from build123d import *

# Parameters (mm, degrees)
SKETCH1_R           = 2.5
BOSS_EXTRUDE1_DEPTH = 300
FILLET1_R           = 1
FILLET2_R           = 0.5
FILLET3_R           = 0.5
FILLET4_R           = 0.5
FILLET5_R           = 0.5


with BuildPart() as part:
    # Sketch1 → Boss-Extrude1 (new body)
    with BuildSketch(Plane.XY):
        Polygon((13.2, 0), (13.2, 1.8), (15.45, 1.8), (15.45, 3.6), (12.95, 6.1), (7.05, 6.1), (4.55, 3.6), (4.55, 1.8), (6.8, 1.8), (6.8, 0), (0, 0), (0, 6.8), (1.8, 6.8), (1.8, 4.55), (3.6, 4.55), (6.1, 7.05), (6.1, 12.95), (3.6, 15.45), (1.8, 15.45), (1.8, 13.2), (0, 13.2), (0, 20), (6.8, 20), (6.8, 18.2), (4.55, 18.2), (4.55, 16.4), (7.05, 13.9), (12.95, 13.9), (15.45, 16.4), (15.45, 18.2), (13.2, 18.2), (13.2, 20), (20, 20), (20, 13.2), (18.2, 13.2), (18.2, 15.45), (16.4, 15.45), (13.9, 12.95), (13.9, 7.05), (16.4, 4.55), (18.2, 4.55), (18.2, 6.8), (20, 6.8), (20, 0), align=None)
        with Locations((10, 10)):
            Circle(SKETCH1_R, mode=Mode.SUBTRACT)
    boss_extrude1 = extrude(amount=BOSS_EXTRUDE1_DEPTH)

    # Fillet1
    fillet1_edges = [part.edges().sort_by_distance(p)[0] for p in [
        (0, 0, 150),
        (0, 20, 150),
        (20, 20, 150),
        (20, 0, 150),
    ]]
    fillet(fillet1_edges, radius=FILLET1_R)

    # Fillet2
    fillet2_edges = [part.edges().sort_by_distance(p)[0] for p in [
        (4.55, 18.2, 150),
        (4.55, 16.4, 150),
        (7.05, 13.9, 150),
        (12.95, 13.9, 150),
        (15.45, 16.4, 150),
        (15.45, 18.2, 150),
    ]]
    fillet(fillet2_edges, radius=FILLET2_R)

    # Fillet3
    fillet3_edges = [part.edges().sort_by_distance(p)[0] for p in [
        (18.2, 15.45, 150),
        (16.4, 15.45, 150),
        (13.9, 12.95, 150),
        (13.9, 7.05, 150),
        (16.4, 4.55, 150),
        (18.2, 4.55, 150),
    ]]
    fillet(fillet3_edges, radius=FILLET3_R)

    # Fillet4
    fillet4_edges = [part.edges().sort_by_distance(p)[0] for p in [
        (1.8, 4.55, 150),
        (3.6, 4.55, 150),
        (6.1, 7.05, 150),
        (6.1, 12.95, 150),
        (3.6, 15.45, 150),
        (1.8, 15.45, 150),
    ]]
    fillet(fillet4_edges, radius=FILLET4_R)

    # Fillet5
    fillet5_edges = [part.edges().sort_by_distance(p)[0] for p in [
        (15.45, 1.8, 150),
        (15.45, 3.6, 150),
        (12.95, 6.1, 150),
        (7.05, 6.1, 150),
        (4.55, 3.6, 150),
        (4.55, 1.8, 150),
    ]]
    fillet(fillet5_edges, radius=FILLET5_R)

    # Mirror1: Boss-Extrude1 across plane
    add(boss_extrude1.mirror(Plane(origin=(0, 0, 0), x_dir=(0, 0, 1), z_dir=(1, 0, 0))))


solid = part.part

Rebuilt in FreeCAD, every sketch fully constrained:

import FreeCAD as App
import Part
import Sketcher
Q = App.Units.Quantity


def edges_at(feature, points):
    """Names of the edges that pass closest to the given points."""
    edges = feature.Shape.Edges
    near = lambda p: min(range(len(edges)), key=lambda i: edges[i].distToShape(Part.Vertex(*p))[0])
    return sorted({f"Edge{near(p) + 1}" for p in points})


def add_polygon(sketch, points):
    """Adds a closed chain of lines whose ends are joined by coincident constraints."""
    first, n = sketch.GeometryCount, len(points)
    for a, b in zip(points, points[1:] + points[:1]):
        sketch.addGeometry(Part.LineSegment(App.Vector(*a, 0), App.Vector(*b, 0)), False)
    for i in range(n):
        sketch.addConstraint(Sketcher.Constraint("Coincident", first + i, 2, first + (i + 1) % n, 1))

doc = App.newDocument("Part")
params = doc.addObject("Spreadsheet::Sheet", "Params")
for row, (alias, value) in enumerate([
    ("sketch1_diameter", "5 mm"),
    ("sketch1_width", "6.8 mm"),
    ("sketch1_width2", "1.8 mm"),
    ("sketch1_width3", "5.9 mm"),
    ("sketch1_width4", "2.25 mm"),
    ("pad1_length", "300 mm"),
    ("fillet_radius", "1 mm"),
    ("fillet2_radius", "0.5 mm"),
    ("fillet3_radius", "0.5 mm"),
    ("fillet4_radius", "0.5 mm"),
    ("fillet5_radius", "0.5 mm"),
], start=1):
    params.set(f"A{row}", alias)
    params.set(f"B{row}", "=" + value)
    params.setAlias(f"B{row}", alias)

body = doc.addObject("PartDesign::Body", "Body")

# Sketch on XY plane
sketch1 = doc.addObject("Sketcher::SketchObject", "Sketch")
body.addObject(sketch1)
sketch1.AttachmentSupport = (doc.XY_Plane, [""])
sketch1.MapMode = "FlatFace"
add_polygon(sketch1, [(13.2, 1.8), (13.2, 0), (20, 0), (20, 6.8), (18.2, 6.8), (18.2, 4.55), (16.4, 4.55), (13.9, 7.05), (13.9, 12.95), (16.4, 15.45), (18.2, 15.45), (18.2, 13.2), (20, 13.2), (20, 20), (13.2, 20), (13.2, 18.2), (15.45, 18.2), (15.45, 16.4), (12.95, 13.9), (7.05, 13.9), (4.55, 16.4), (4.55, 18.2), (6.8, 18.2), (6.8, 20), (0, 20), (0, 13.2), (1.8, 13.2), (1.8, 15.45), (3.6, 15.45), (6.1, 12.95), (6.1, 7.05), (3.6, 4.55), (1.8, 4.55), (1.8, 6.8), (0, 6.8), (0, 0), (6.8, 0), (6.8, 1.8), (4.55, 1.8), (4.55, 3.6), (7.05, 6.1), (12.95, 6.1), (15.45, 3.6), (15.45, 1.8)])  # lines 0-43
sketch1.addGeometry(Part.Circle(App.Vector(10, 10, 0), App.Vector(0, 0, 1), 2.5), False)  # 44
sketch1.addConstraint([
    Sketcher.Constraint("Vertical", 0),
    Sketcher.Constraint("Horizontal", 1),
    Sketcher.Constraint("Vertical", 2),
    Sketcher.Constraint("Horizontal", 3),
    Sketcher.Constraint("Vertical", 4),
    Sketcher.Constraint("Horizontal", 5),
    Sketcher.Constraint("Vertical", 7),
    Sketcher.Constraint("Horizontal", 9),
    Sketcher.Constraint("Vertical", 10),
    Sketcher.Constraint("Horizontal", 11),
    Sketcher.Constraint("Vertical", 12),
    Sketcher.Constraint("Horizontal", 13),
    Sketcher.Constraint("Vertical", 14),
    Sketcher.Constraint("Horizontal", 15),
    Sketcher.Constraint("Vertical", 16),
    Sketcher.Constraint("Horizontal", 18),
    Sketcher.Constraint("Vertical", 20),
    Sketcher.Constraint("Horizontal", 21),
    Sketcher.Constraint("Vertical", 22),
    Sketcher.Constraint("Horizontal", 23),
    Sketcher.Constraint("Vertical", 24),
    Sketcher.Constraint("Horizontal", 25),
    Sketcher.Constraint("Vertical", 26),
    Sketcher.Constraint("Horizontal", 27),
    Sketcher.Constraint("Vertical", 29),
    Sketcher.Constraint("Horizontal", 31),
    Sketcher.Constraint("Vertical", 32),
    Sketcher.Constraint("Horizontal", 33),
    Sketcher.Constraint("Vertical", 34),
    Sketcher.Constraint("Horizontal", 35),
    Sketcher.Constraint("Vertical", 36),
    Sketcher.Constraint("Horizontal", 37),
    Sketcher.Constraint("Vertical", 38),
    Sketcher.Constraint("Horizontal", 40),
    Sketcher.Constraint("Vertical", 42),
    Sketcher.Constraint("Horizontal", 43),
    Sketcher.Constraint("Coincident", 34, 2, -1, 1),
    Sketcher.Constraint("PointOnObject", 0, 2, -1),
    Sketcher.Constraint("PointOnObject", 23, 2, -2),
    Sketcher.Constraint("Perpendicular", 6, 8),
    Sketcher.Constraint("Parallel", 8, 17),
    Sketcher.Constraint("Perpendicular", 17, 19),
    Sketcher.Constraint("Parallel", 19, 28),
    Sketcher.Constraint("Perpendicular", 28, 30),
    Sketcher.Constraint("Parallel", 30, 39),
    Sketcher.Constraint("Perpendicular", 39, 41),
    Sketcher.Constraint("Horizontal", 16, 2, 19, 2),
    Sketcher.Constraint("Horizontal", 15, 2, 20, 2),
    Sketcher.Constraint("Horizontal", 13, 2, 22, 2),
    Sketcher.Constraint("Horizontal", 11, 2, 24, 2),
    Sketcher.Constraint("Horizontal", 9, 2, 26, 2),
    Sketcher.Constraint("Horizontal", 7, 2, 28, 2),
    Sketcher.Constraint("Horizontal", 6, 2, 29, 2),
    Sketcher.Constraint("Horizontal", 5, 2, 30, 2),
    Sketcher.Constraint("Horizontal", 3, 2, 32, 2),
    Sketcher.Constraint("Horizontal", 38, 2, 41, 2),
    Sketcher.Constraint("Horizontal", 37, 2, 42, 2),
    Sketcher.Constraint("Vertical", 5, 2, 8, 2),
    Sketcher.Constraint("Vertical", 4, 2, 9, 2),
    Sketcher.Constraint("Vertical", 2, 2, 11, 2),
    Sketcher.Constraint("Vertical", 0, 2, 13, 2),
    Sketcher.Constraint("Vertical", 27, 2, 30, 2),
    Sketcher.Constraint("Vertical", 26, 2, 31, 2),
    Sketcher.Constraint("Vertical", 22, 2, 35, 2),
    Sketcher.Constraint("Vertical", 20, 2, 37, 2),
    Sketcher.Constraint("Vertical", 18, 2, 39, 2),
    Sketcher.Constraint("Vertical", 17, 2, 40, 2),
    Sketcher.Constraint("Equal", 3, 5),
    Sketcher.Constraint("Equal", 15, 21),
    Sketcher.Constraint("Equal", 13, 23),
    Sketcher.Constraint("Equal", 11, 25),
    Sketcher.Constraint("Equal", 25, 27),
    Sketcher.Constraint("Equal", 33, 0),
    Sketcher.Constraint("Equal", 35, 2),
    Sketcher.Constraint("Equal", 43, 4),
    Sketcher.Constraint("Equal", 40, 7),
    Sketcher.Constraint("Equal", 4, 10),
    Sketcher.Constraint("Equal", 2, 12),
    Sketcher.Constraint("Equal", 0, 14),
    Sketcher.Constraint("Equal", 14, 16),
    Sketcher.Constraint("Equal", 36, 38),
    Sketcher.Constraint("Equal", 8, 17),
    Sketcher.Constraint("Diameter", 44, Q("5 mm")),
    Sketcher.Constraint("DistanceX", 1, 1, 1, 2, Q("6.8 mm")),
    Sketcher.Constraint("DistanceX", 3, 2, 3, 1, Q("1.8 mm")),
    Sketcher.Constraint("DistanceX", 18, 2, 18, 1, Q("5.9 mm")),
    Sketcher.Constraint("DistanceX", -1, 1, 44, 3, Q("10 mm")),
    Sketcher.Constraint("DistanceY", -1, 1, 44, 3, Q("10 mm")),
    Sketcher.Constraint("DistanceX", -1, 1, 1, 2, Q("20 mm")),
    Sketcher.Constraint("DistanceX", 15, 1, 15, 2, Q("2.25 mm")),
])
sketch1.setExpression("Constraints[126]", "Params.sketch1_diameter")
sketch1.setExpression("Constraints[127]", "Params.sketch1_width")
sketch1.setExpression("Constraints[128]", "Params.sketch1_width2")
sketch1.setExpression("Constraints[129]", "Params.sketch1_width3")
sketch1.setExpression("Constraints[133]", "Params.sketch1_width4")
pad1 = doc.addObject("PartDesign::Pad", "Pad")
body.addObject(pad1)
pad1.Profile = sketch1
pad1.setExpression("Length", "Params.pad1_length")
doc.recompute()

fillet = doc.addObject("PartDesign::Fillet", "Fillet")
body.addObject(fillet)
fillet.Base = (pad1, edges_at(pad1, [
    (0, 0, 150),
    (0, 20, 150),
    (20, 20, 150),
    (20, 0, 150),
]))
fillet.setExpression("Radius", "Params.fillet_radius")
doc.recompute()

fillet2 = doc.addObject("PartDesign::Fillet", "Fillet001")
body.addObject(fillet2)
fillet2.Base = (fillet, edges_at(fillet, [
    (4.55, 18.2, 150),
    (4.55, 16.4, 150),
    (7.05, 13.9, 150),
    (12.95, 13.9, 150),
    (15.45, 16.4, 150),
    (15.45, 18.2, 150),
]))
fillet2.setExpression("Radius", "Params.fillet2_radius")
doc.recompute()

fillet3 = doc.addObject("PartDesign::Fillet", "Fillet002")
body.addObject(fillet3)
fillet3.Base = (fillet2, edges_at(fillet2, [
    (18.2, 15.45, 150),
    (16.4, 15.45, 150),
    (13.9, 12.95, 150),
    (13.9, 7.05, 150),
    (16.4, 4.55, 150),
    (18.2, 4.55, 150),
]))
fillet3.setExpression("Radius", "Params.fillet3_radius")
doc.recompute()

fillet4 = doc.addObject("PartDesign::Fillet", "Fillet003")
body.addObject(fillet4)
fillet4.Base = (fillet3, edges_at(fillet3, [
    (1.8, 4.55, 150),
    (3.6, 4.55, 150),
    (6.1, 7.05, 150),
    (6.1, 12.95, 150),
    (3.6, 15.45, 150),
    (1.8, 15.45, 150),
]))
fillet4.setExpression("Radius", "Params.fillet4_radius")
doc.recompute()

fillet5 = doc.addObject("PartDesign::Fillet", "Fillet004")
body.addObject(fillet5)
fillet5.Base = (fillet4, edges_at(fillet4, [
    (15.45, 1.8, 150),
    (15.45, 3.6, 150),
    (12.95, 6.1, 150),
    (7.05, 6.1, 150),
    (4.55, 3.6, 150),
    (4.55, 1.8, 150),
]))
fillet5.setExpression("Radius", "Params.fillet5_radius")
doc.recompute()

mirrored = doc.addObject("PartDesign::Mirrored", "Mirrored")
body.addObject(mirrored)
mirrored.Originals = [pad1]
mirrored.MirrorPlane = (doc.YZ_Plane, [""])
body.Tip = mirrored

doc.recompute()
